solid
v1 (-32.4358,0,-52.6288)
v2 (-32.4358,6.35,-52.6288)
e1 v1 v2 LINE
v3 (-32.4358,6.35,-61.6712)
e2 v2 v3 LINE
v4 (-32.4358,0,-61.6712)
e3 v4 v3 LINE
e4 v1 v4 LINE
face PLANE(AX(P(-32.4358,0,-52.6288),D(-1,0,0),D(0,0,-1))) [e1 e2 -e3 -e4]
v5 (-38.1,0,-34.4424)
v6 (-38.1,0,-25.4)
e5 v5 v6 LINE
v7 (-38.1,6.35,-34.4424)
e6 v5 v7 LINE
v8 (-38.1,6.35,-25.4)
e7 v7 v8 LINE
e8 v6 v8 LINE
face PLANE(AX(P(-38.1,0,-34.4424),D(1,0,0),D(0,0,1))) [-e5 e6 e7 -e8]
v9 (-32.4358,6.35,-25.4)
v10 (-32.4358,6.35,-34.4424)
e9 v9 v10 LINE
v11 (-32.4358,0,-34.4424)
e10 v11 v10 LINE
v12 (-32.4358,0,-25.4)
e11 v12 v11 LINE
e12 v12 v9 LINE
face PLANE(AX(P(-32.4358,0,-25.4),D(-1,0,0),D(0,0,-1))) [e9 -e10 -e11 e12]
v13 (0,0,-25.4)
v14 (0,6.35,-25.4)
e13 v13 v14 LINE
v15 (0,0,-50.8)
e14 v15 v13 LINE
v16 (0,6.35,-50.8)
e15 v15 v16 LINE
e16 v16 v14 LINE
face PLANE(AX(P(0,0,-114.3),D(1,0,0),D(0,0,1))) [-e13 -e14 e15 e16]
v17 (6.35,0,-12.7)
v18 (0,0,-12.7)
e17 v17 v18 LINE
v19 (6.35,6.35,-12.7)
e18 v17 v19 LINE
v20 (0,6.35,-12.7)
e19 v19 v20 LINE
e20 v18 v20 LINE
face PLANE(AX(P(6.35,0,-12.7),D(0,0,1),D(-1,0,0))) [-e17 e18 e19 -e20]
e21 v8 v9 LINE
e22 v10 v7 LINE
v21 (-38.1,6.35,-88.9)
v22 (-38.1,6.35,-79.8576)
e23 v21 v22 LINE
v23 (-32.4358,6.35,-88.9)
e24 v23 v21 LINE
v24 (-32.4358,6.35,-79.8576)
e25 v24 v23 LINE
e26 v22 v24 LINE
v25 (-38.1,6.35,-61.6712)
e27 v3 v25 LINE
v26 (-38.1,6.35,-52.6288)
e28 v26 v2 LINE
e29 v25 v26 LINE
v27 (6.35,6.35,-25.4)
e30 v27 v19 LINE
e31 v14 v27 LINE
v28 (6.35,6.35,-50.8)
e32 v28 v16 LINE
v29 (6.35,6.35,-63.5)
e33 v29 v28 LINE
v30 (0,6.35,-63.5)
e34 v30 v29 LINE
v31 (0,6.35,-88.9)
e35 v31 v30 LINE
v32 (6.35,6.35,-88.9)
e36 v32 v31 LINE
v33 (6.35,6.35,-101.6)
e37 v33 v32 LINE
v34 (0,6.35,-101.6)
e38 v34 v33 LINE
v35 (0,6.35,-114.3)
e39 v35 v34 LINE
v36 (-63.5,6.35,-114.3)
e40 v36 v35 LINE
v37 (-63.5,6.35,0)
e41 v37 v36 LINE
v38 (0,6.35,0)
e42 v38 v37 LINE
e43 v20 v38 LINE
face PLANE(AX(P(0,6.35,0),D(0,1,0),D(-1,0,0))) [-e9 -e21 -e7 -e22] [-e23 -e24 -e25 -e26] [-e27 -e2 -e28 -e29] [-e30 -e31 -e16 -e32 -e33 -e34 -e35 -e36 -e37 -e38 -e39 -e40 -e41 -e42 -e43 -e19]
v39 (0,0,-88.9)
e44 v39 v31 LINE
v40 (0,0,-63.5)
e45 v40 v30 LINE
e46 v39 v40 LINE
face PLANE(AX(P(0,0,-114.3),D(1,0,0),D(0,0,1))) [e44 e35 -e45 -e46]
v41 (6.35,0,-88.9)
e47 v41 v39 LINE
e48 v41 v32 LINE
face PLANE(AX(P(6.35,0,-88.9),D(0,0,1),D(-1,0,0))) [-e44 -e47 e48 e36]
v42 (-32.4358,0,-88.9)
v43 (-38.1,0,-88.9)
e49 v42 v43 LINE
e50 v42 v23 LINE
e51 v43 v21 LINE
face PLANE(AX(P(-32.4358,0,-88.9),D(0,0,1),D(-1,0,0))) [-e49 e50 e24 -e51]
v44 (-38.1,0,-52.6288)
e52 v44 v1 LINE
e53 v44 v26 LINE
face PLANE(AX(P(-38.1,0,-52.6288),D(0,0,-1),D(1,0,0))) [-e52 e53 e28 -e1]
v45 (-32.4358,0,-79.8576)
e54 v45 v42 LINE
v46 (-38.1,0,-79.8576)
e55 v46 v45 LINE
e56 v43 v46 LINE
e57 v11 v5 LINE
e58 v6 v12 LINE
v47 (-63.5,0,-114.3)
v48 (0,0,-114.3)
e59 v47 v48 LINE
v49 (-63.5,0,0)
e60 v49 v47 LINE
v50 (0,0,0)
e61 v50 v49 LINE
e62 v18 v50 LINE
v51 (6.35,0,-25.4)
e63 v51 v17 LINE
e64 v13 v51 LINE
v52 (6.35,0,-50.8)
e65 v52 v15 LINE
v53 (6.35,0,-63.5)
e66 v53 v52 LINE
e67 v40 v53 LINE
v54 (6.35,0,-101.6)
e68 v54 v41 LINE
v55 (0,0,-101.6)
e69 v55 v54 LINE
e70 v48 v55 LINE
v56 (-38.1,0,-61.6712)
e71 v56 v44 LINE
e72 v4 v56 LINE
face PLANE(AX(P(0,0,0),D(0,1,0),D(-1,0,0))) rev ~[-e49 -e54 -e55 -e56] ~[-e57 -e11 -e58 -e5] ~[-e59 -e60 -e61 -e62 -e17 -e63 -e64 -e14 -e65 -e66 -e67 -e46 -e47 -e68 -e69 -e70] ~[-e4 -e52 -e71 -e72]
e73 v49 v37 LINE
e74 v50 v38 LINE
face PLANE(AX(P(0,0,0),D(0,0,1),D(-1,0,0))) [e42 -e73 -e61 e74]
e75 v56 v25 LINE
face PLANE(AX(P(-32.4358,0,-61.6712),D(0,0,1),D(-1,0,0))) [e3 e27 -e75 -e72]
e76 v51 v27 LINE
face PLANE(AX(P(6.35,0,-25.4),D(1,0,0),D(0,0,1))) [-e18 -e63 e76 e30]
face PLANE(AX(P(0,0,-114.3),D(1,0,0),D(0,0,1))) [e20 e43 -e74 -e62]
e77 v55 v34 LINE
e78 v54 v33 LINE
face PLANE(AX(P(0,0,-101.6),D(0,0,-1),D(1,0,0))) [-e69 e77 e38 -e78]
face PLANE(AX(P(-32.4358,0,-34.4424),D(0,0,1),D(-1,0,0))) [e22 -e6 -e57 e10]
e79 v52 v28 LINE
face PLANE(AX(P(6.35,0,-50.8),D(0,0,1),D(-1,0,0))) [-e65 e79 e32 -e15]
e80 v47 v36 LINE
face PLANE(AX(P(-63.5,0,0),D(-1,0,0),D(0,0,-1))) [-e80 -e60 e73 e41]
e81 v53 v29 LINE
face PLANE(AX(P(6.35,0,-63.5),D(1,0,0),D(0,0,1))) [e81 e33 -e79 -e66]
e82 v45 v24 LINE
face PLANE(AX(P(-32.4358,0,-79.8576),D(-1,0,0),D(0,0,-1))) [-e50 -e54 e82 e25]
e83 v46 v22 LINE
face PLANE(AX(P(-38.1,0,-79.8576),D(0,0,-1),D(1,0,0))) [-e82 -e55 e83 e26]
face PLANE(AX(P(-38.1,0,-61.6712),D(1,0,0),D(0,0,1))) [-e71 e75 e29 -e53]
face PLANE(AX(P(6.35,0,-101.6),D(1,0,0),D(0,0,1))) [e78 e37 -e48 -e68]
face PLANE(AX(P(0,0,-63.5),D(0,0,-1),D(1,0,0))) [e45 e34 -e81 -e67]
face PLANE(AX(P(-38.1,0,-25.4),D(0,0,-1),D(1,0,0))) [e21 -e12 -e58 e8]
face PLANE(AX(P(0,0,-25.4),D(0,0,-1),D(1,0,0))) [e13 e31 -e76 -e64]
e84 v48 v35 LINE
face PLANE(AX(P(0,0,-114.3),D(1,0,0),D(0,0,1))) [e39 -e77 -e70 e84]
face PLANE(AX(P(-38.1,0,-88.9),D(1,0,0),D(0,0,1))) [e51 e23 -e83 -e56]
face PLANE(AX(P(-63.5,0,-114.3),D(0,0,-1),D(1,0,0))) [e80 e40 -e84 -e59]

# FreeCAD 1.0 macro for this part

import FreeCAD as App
import Part
import Sketcher
Q = App.Units.Quantity

doc = App.newDocument("Part")
body = doc.addObject("PartDesign::Body", "Body")

sketch1 = body.newObject("Sketcher::SketchObject", "Sketch")
sketch1.AttachmentSupport = (doc.getObject("XZ_Plane"), [""])
sketch1.MapMode = "FlatFace"
sketch1.addGeometry(Part.LineSegment(App.Vector(-63.5, 0, 0), App.Vector(0, 0, 0)), False)
sketch1.addGeometry(Part.LineSegment(App.Vector(0, 0, 0), App.Vector(0, -114.3, 0)), False)
sketch1.addGeometry(Part.LineSegment(App.Vector(0, -114.3, 0), App.Vector(-63.5, -114.3, 0)), False)
sketch1.addGeometry(Part.LineSegment(App.Vector(-63.5, -114.3, 0), App.Vector(-63.5, 0, 0)), False)
sketch1.addGeometry(Part.LineSegment(App.Vector(-32.4358, -79.8576, 0), App.Vector(-38.1, -79.8576, 0)), False)
sketch1.addGeometry(Part.LineSegment(App.Vector(-38.1, -79.8576, 0), App.Vector(-38.1, -88.9, 0)), False)
sketch1.addGeometry(Part.LineSegment(App.Vector(-38.1, -88.9, 0), App.Vector(-32.4358, -88.9, 0)), False)
sketch1.addGeometry(Part.LineSegment(App.Vector(-32.4358, -88.9, 0), App.Vector(-32.4358, -79.8576, 0)), False)
sketch1.addGeometry(Part.LineSegment(App.Vector(-32.4358, -52.6288, 0), App.Vector(-38.1, -52.6288, 0)), False)
sketch1.addGeometry(Part.LineSegment(App.Vector(-38.1, -52.6288, 0), App.Vector(-38.1, -61.6712, 0)), False)
sketch1.addGeometry(Part.LineSegment(App.Vector(-38.1, -61.6712, 0), App.Vector(-32.4358, -61.6712, 0)), False)
sketch1.addGeometry(Part.LineSegment(App.Vector(-32.4358, -61.6712, 0), App.Vector(-32.4358, -52.6288, 0)), False)
sketch1.addGeometry(Part.LineSegment(App.Vector(-32.4358, -25.4, 0), App.Vector(-38.1, -25.4, 0)), False)
sketch1.addGeometry(Part.LineSegment(App.Vector(-38.1, -25.4, 0), App.Vector(-38.1, -34.4424, 0)), False)
sketch1.addGeometry(Part.LineSegment(App.Vector(-38.1, -34.4424, 0), App.Vector(-32.4358, -34.4424, 0)), False)
sketch1.addGeometry(Part.LineSegment(App.Vector(-32.4358, -34.4424, 0), App.Vector(-32.4358, -25.4, 0)), False)
sketch1.addConstraint(Sketcher.Constraint("Coincident", 0, 2, 1, 1))
sketch1.addConstraint(Sketcher.Constraint("Coincident", 1, 2, 2, 1))
sketch1.addConstraint(Sketcher.Constraint("Coincident", 2, 2, 3, 1))
sketch1.addConstraint(Sketcher.Constraint("Coincident", 3, 2, 0, 1))
sketch1.addConstraint(Sketcher.Constraint("Coincident", 4, 2, 5, 1))
sketch1.addConstraint(Sketcher.Constraint("Coincident", 5, 2, 6, 1))
sketch1.addConstraint(Sketcher.Constraint("Coincident", 6, 2, 7, 1))
sketch1.addConstraint(Sketcher.Constraint("Coincident", 7, 2, 4, 1))
sketch1.addConstraint(Sketcher.Constraint("Coincident", 8, 2, 9, 1))
sketch1.addConstraint(Sketcher.Constraint("Coincident", 9, 2, 10, 1))
sketch1.addConstraint(Sketcher.Constraint("Coincident", 10, 2, 11, 1))
sketch1.addConstraint(Sketcher.Constraint("Coincident", 11, 2, 8, 1))
sketch1.addConstraint(Sketcher.Constraint("Coincident", 12, 2, 13, 1))
sketch1.addConstraint(Sketcher.Constraint("Coincident", 13, 2, 14, 1))
sketch1.addConstraint(Sketcher.Constraint("Coincident", 14, 2, 15, 1))
sketch1.addConstraint(Sketcher.Constraint("Coincident", 15, 2, 12, 1))
sketch1.addConstraint(Sketcher.Constraint("Horizontal", 0))
sketch1.addConstraint(Sketcher.Constraint("Vertical", 1))
sketch1.addConstraint(Sketcher.Constraint("Horizontal", 2))
sketch1.addConstraint(Sketcher.Constraint("Vertical", 3))
sketch1.addConstraint(Sketcher.Constraint("Horizontal", 4))
sketch1.addConstraint(Sketcher.Constraint("Vertical", 5))
sketch1.addConstraint(Sketcher.Constraint("Horizontal", 6))
sketch1.addConstraint(Sketcher.Constraint("Vertical", 7))
sketch1.addConstraint(Sketcher.Constraint("Horizontal", 8))
sketch1.addConstraint(Sketcher.Constraint("Vertical", 9))
sketch1.addConstraint(Sketcher.Constraint("Horizontal", 10))
sketch1.addConstraint(Sketcher.Constraint("Vertical", 11))
sketch1.addConstraint(Sketcher.Constraint("Horizontal", 12))
sketch1.addConstraint(Sketcher.Constraint("Vertical", 13))
sketch1.addConstraint(Sketcher.Constraint("Horizontal", 14))
sketch1.addConstraint(Sketcher.Constraint("Vertical", 15))
sketch1.addConstraint(Sketcher.Constraint("Coincident", 0, 2, -1, 1))
sketch1.addConstraint(Sketcher.Constraint("Vertical", 5, 2, 8, 2))
sketch1.addConstraint(Sketcher.Constraint("Vertical", 7, 2, 10, 2))
sketch1.addConstraint(Sketcher.Constraint("Vertical", 9, 2, 12, 2))
sketch1.addConstraint(Sketcher.Constraint("Vertical", 11, 2, 14, 2))
sketch1.addConstraint(Sketcher.Constraint("Equal", 7, 9))
sketch1.addConstraint(Sketcher.Constraint("Equal", 11, 13))
sketch1.addConstraint(Sketcher.Constraint("DistanceX", 0, 1, 0, 2, Q("2.5 in")))
sketch1.addConstraint(Sketcher.Constraint("DistanceY", 1, 2, 1, 1, Q("4.5 in")))
sketch1.addConstraint(Sketcher.Constraint("DistanceY", 12, 2, -1, 1, Q("1 in")))
sketch1.addConstraint(Sketcher.Constraint("DistanceX", 2, 2, 4, 2, Q("1 in")))
sketch1.addConstraint(Sketcher.Constraint("DistanceY", 2, 2, 5, 2, Q("1 in")))
sketch1.addConstraint(Sketcher.Constraint("DistanceX", 4, 2, 4, 1, Q("0.223 in")))
sketch1.addConstraint(Sketcher.Constraint("DistanceY", 5, 2, 5, 1, Q("0.356 in")))
sketch1.addConstraint(Sketcher.Constraint("DistanceY", 4, 2, 9, 2, Q("0.716 in")))
pad1 = body.newObject("PartDesign::Pad", "Pad")
pad1.Profile = sketch1
pad1.Length = Q("0.25 in")
pad1.Reversed = True

sketch2 = body.newObject("Sketcher::SketchObject", "Sketch001")
sketch2.AttachmentSupport = (doc.getObject("XZ_Plane"), [""])
sketch2.MapMode = "FlatFace"
sketch2.addGeometry(Part.LineSegment(App.Vector(0, -88.9, 0), App.Vector(0, -101.6, 0)), False)
sketch2.addGeometry(Part.LineSegment(App.Vector(0, -101.6, 0), App.Vector(6.35, -101.6, 0)), False)
sketch2.addGeometry(Part.LineSegment(App.Vector(6.35, -101.6, 0), App.Vector(6.35, -88.9, 0)), False)
sketch2.addGeometry(Part.LineSegment(App.Vector(6.35, -88.9, 0), App.Vector(0, -88.9, 0)), False)
sketch2.addGeometry(Part.LineSegment(App.Vector(0, -12.7, 0), App.Vector(0, -25.4, 0)), False)
sketch2.addGeometry(Part.LineSegment(App.Vector(0, -25.4, 0), App.Vector(6.35, -25.4, 0)), False)
sketch2.addGeometry(Part.LineSegment(App.Vector(6.35, -25.4, 0), App.Vector(6.35, -12.7, 0)), False)
sketch2.addGeometry(Part.LineSegment(App.Vector(6.35, -12.7, 0), App.Vector(0, -12.7, 0)), False)
sketch2.addGeometry(Part.LineSegment(App.Vector(0, -50.8, 0), App.Vector(0, -63.5, 0)), False)
sketch2.addGeometry(Part.LineSegment(App.Vector(0, -63.5, 0), App.Vector(6.35, -63.5, 0)), False)
sketch2.addGeometry(Part.LineSegment(App.Vector(6.35, -63.5, 0), App.Vector(6.35, -50.8, 0)), False)
sketch2.addGeometry(Part.LineSegment(App.Vector(6.35, -50.8, 0), App.Vector(0, -50.8, 0)), False)
sketch2.addConstraint(Sketcher.Constraint("Coincident", 0, 2, 1, 1))
sketch2.addConstraint(Sketcher.Constraint("Coincident", 1, 2, 2, 1))
sketch2.addConstraint(Sketcher.Constraint("Coincident", 2, 2, 3, 1))
sketch2.addConstraint(Sketcher.Constraint("Coincident", 3, 2, 0, 1))
sketch2.addConstraint(Sketcher.Constraint("Coincident", 4, 2, 5, 1))
sketch2.addConstraint(Sketcher.Constraint("Coincident", 5, 2, 6, 1))
sketch2.addConstraint(Sketcher.Constraint("Coincident", 6, 2, 7, 1))
sketch2.addConstraint(Sketcher.Constraint("Coincident", 7, 2, 4, 1))
sketch2.addConstraint(Sketcher.Constraint("Coincident", 8, 2, 9, 1))
sketch2.addConstraint(Sketcher.Constraint("Coincident", 9, 2, 10, 1))
sketch2.addConstraint(Sketcher.Constraint("Coincident", 10, 2, 11, 1))
sketch2.addConstraint(Sketcher.Constraint("Coincident", 11, 2, 8, 1))
sketch2.addConstraint(Sketcher.Constraint("Vertical", 0))
sketch2.addConstraint(Sketcher.Constraint("Horizontal", 1))
sketch2.addConstraint(Sketcher.Constraint("Vertical", 2))
sketch2.addConstraint(Sketcher.Constraint("Horizontal", 3))
sketch2.addConstraint(Sketcher.Constraint("Vertical", 4))
sketch2.addConstraint(Sketcher.Constraint("Horizontal", 5))
sketch2.addConstraint(Sketcher.Constraint("Vertical", 6))
sketch2.addConstraint(Sketcher.Constraint("Horizontal", 7))
sketch2.addConstraint(Sketcher.Constraint("Vertical", 8))
sketch2.addConstraint(Sketcher.Constraint("Horizontal", 9))
sketch2.addConstraint(Sketcher.Constraint("Vertical", 10))
sketch2.addConstraint(Sketcher.Constraint("Horizontal", 11))
sketch2.addConstraint(Sketcher.Constraint("PointOnObject", 0, 2, -2))
sketch2.addConstraint(Sketcher.Constraint("PointOnObject", 4, 2, -2))
sketch2.addConstraint(Sketcher.Constraint("PointOnObject", 8, 2, -2))
sketch2.addConstraint(Sketcher.Constraint("Vertical", 2, 2, 5, 2))
sketch2.addConstraint(Sketcher.Constraint("Vertical", 6, 2, 9, 2))
sketch2.addConstraint(Sketcher.Constraint("Equal", 2, 4))
sketch2.addConstraint(Sketcher.Constraint("Equal", 6, 8))
sketch2.addConstraint(Sketcher.Constraint("DistanceY", 0, 2, 0, 1, Q("0.5 in")))
sketch2.addConstraint(Sketcher.Constraint("DistanceY", 4, 2, -1, 1, Q("1 in")))
sketch2.addConstraint(Sketcher.Constraint("DistanceY", 3, 2, 8, 2, Q("1 in")))
sketch2.addConstraint(Sketcher.Constraint("DistanceY", 10, 2, 5, 2, Q("1 in")))
sketch2.addConstraint(Sketcher.Constraint("DistanceX", 1, 1, 1, 2, Q("0.25 in")))
pad2 = body.newObject("PartDesign::Pad", "Pad001")
pad2.Profile = sketch2
pad2.Length = Q("0.25 in")
pad2.Reversed = True

doc.recompute()
